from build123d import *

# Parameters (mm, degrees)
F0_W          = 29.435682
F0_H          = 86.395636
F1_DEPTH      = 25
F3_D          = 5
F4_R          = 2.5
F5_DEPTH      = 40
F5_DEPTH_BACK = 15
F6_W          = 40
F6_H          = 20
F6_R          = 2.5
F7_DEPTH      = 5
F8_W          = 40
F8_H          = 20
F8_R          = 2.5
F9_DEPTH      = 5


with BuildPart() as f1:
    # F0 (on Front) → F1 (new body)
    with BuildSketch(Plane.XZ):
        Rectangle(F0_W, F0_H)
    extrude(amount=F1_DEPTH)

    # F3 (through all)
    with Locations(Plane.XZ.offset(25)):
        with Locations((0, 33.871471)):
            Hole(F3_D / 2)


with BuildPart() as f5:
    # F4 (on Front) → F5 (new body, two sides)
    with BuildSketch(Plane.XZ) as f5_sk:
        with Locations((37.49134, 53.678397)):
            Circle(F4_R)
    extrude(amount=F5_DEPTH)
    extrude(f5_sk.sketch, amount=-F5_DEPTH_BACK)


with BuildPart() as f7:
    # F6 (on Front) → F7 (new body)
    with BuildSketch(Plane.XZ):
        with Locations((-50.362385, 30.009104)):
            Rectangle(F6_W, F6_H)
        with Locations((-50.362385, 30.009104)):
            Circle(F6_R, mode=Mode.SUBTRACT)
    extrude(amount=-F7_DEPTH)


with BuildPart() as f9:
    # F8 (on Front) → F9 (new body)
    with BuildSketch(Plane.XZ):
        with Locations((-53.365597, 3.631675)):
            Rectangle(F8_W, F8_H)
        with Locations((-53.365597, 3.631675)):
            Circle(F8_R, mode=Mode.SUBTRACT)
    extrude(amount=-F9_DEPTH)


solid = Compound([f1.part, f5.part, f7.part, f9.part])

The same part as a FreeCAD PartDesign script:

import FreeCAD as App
import Part
import Sketcher
from FreeCAD import Vector
Q = App.Units.Quantity

doc = App.newDocument("Part")
params = doc.addObject("Spreadsheet::Sheet", "Params")
for row, (alias, value) in enumerate([
    ("pad1_length", "25 mm"),
    ("sketch2_diameter", "5 mm"),
    ("hole_diameter", "5 mm"),
    ("sketch3_diameter", "5 mm"),
    ("pad2_length", "40 mm"),
    ("pad2_length2", "15 mm"),
    ("sketch4_diameter", "5 mm"),
    ("sketch4_width", "40 mm"),
    ("sketch4_height", "20 mm"),
    ("pad3_length", "5 mm"),
    ("sketch5_diameter", "5 mm"),
    ("sketch5_width", "40 mm"),
    ("sketch5_height", "20 mm"),
    ("pad4_length", "5 mm"),
], start=1):
    params.set(f"A{row}", alias)
    params.set(f"B{row}", "=" + value)
    params.setAlias(f"B{row}", alias)

body = doc.addObject("PartDesign::Body", "Body")

# Sketch on XZ plane
sketch1 = doc.addObject("Sketcher::SketchObject", "Sketch")
body.addObject(sketch1)
sketch1.AttachmentSupport = (doc.XZ_Plane, [""])
sketch1.MapMode = "FlatFace"
sketch1.addGeometry([
    Part.LineSegment(Vector(-15, 43, 0), Vector(-15, -43, 0)),
    Part.LineSegment(Vector(-15, -43, 0), Vector(15, -43, 0)),
    Part.LineSegment(Vector(15, -43, 0), Vector(15, 43, 0)),
    Part.LineSegment(Vector(15, 43, 0), Vector(-15, 43, 0)),
], False)
sketch1.addConstraint([
    Sketcher.Constraint("Coincident", 0, 2, 1, 1),
    Sketcher.Constraint("Coincident", 1, 2, 2, 1),
    Sketcher.Constraint("Coincident", 2, 2, 3, 1),
    Sketcher.Constraint("Coincident", 3, 2, 0, 1),
    Sketcher.Constraint("Vertical", 0),
    Sketcher.Constraint("Horizontal", 1),
    Sketcher.Constraint("Vertical", 2),
    Sketcher.Constraint("Horizontal", 3),
    Sketcher.Constraint("Symmetric", 0, 2, 2, 2, -1, 1),
    Sketcher.Constraint("DistanceX", 1, 1, 1, 2, Q("29.435682 mm")),
    Sketcher.Constraint("DistanceY", 0, 2, 0, 1, Q("86.395636 mm")),
])
pad1 = doc.addObject("PartDesign::Pad", "Pad")
body.addObject(pad1)
pad1.Profile = sketch1
pad1.setExpression("Length", "Params.pad1_length")

# Sketch on XZ plane
sketch2 = doc.addObject("Sketcher::SketchObject", "Sketch001")
body.addObject(sketch2)
sketch2.AttachmentSupport = (doc.XZ_Plane, [""])
sketch2.MapMode = "FlatFace"
sketch2.AttachmentOffset = App.Placement(Vector(0, 0, 25), App.Rotation())
sketch2.addGeometry(Part.Circle(Vector(0, 33.9, 0), Vector(0, 0, 1), 2.5), False)
sketch2.addConstraint([
    Sketcher.Constraint("PointOnObject", 0, 3, -2),
    Sketcher.Constraint("Diameter", 0, Q("5 mm")),
    Sketcher.Constraint("DistanceY", -1, 1, 0, 3, Q("33.871471 mm")),
])
sketch2.setExpression("Constraints[1]", "Params.sketch2_diameter")
doc.recompute()
hole = doc.addObject("PartDesign::Hole", "Hole")
body.addObject(hole)
hole.Profile = sketch2
hole.ThreadType = "None"
hole.setExpression("Diameter", "Params.hole_diameter")
hole.DepthType = "ThroughAll"
body2 = doc.addObject("PartDesign::Body", "Body001")

# Sketch on XZ plane
sketch3 = doc.addObject("Sketcher::SketchObject", "Sketch002")
body2.addObject(sketch3)
sketch3.AttachmentSupport = (doc.getObject("XZ_Plane001"), [""])
sketch3.MapMode = "FlatFace"
sketch3.addGeometry(Part.Circle(Vector(37.5, 53.7, 0), Vector(0, 0, 1), 2.5), False)
sketch3.addConstraint([
    Sketcher.Constraint("Diameter", 0, Q("5 mm")),
    Sketcher.Constraint("DistanceX", -1, 1, 0, 3, Q("37.49134 mm")),
    Sketcher.Constraint("DistanceY", -1, 1, 0, 3, Q("53.678397 mm")),
])
sketch3.setExpression("Constraints[0]", "Params.sketch3_diameter")
pad2 = doc.addObject("PartDesign::Pad", "Pad001")
body2.addObject(pad2)
pad2.Profile = sketch3
pad2.Type = "TwoLengths"
pad2.setExpression("Length", "Params.pad2_length")
pad2.setExpression("Length2", "Params.pad2_length2")
body3 = doc.addObject("PartDesign::Body", "Body002")

# Sketch on XZ plane
sketch4 = doc.addObject("Sketcher::SketchObject", "Sketch003")
body3.addObject(sketch4)
sketch4.AttachmentSupport = (doc.getObject("XZ_Plane002"), [""])
sketch4.MapMode = "FlatFace"
sketch4.addGeometry([
    Part.LineSegment(Vector(-70.4, 40, 0), Vector(-70.4, 20, 0)),  # 0
    Part.LineSegment(Vector(-70.4, 20, 0), Vector(-30.4, 20, 0)),  # 1
    Part.LineSegment(Vector(-30.4, 20, 0), Vector(-30.4, 40, 0)),  # 2
    Part.LineSegment(Vector(-30.4, 40, 0), Vector(-70.4, 40, 0)),  # 3
    Part.Circle(Vector(-50.4, 30, 0), Vector(0, 0, 1), 2.5),  # 4
], False)
sketch4.addConstraint([
    Sketcher.Constraint("Coincident", 0, 2, 1, 1),
    Sketcher.Constraint("Coincident", 1, 2, 2, 1),
    Sketcher.Constraint("Coincident", 2, 2, 3, 1),
    Sketcher.Constraint("Coincident", 3, 2, 0, 1),
    Sketcher.Constraint("Vertical", 0),
    Sketcher.Constraint("Horizontal", 1),
    Sketcher.Constraint("Vertical", 2),
    Sketcher.Constraint("Horizontal", 3),
    Sketcher.Constraint("Diameter", 4, Q("5 mm")),
    Sketcher.Constraint("DistanceX", 1, 1, 1, 2, Q("40 mm")),
    Sketcher.Constraint("DistanceY", 0, 2, 0, 1, Q("20 mm")),
    Sketcher.Constraint("DistanceX", 0, 2, 4, 3, Q("20 mm")),
    Sketcher.Constraint("DistanceY", 0, 2, 4, 3, Q("10 mm")),
    Sketcher.Constraint("DistanceX", 4, 3, -1, 1, Q("50.362385 mm")),
    Sketcher.Constraint("DistanceY", -1, 1, 4, 3, Q("30.009104 mm")),
])
sketch4.setExpression("Constraints[8]", "Params.sketch4_diameter")
sketch4.setExpression("Constraints[9]", "Params.sketch4_width")
sketch4.setExpression("Constraints[10]", "Params.sketch4_height")
pad3 = doc.addObject("PartDesign::Pad", "Pad002")
body3.addObject(pad3)
pad3.Profile = sketch4
pad3.setExpression("Length", "Params.pad3_length")
pad3.Reversed = True
body4 = doc.addObject("PartDesign::Body", "Body003")

# Sketch on XZ plane
sketch5 = doc.addObject("Sketcher::SketchObject", "Sketch004")
body4.addObject(sketch5)
sketch5.AttachmentSupport = (doc.getObject("XZ_Plane003"), [""])
sketch5.MapMode = "FlatFace"
sketch5.addGeometry([
    Part.LineSegment(Vector(-73.4, 13.6, 0), Vector(-73.4, -6.4, 0)),  # 0
    Part.LineSegment(Vector(-73.4, -6.4, 0), Vector(-33.4, -6.4, 0)),  # 1
    Part.LineSegment(Vector(-33.4, -6.4, 0), Vector(-33.4, 13.6, 0)),  # 2
    Part.LineSegment(Vector(-33.4, 13.6, 0), Vector(-73.4, 13.6, 0)),  # 3
    Part.Circle(Vector(-53.4, 3.6, 0), Vector(0, 0, 1), 2.5),  # 4
], False)
sketch5.addConstraint([
    Sketcher.Constraint("Coincident", 0, 2, 1, 1),
    Sketcher.Constraint("Coincident", 1, 2, 2, 1),
    Sketcher.Constraint("Coincident", 2, 2, 3, 1),
    Sketcher.Constraint("Coincident", 3, 2, 0, 1),
    Sketcher.Constraint("Vertical", 0),
    Sketcher.Constraint("Horizontal", 1),
    Sketcher.Constraint("Vertical", 2),
    Sketcher.Constraint("Horizontal", 3),
    Sketcher.Constraint("Diameter", 4, Q("5 mm")),
    Sketcher.Constraint("DistanceX", 1, 1, 1, 2, Q("40 mm")),
    Sketcher.Constraint("DistanceY", 0, 2, 0, 1, Q("20 mm")),
    Sketcher.Constraint("DistanceX", 0, 2, 4, 3, Q("20 mm")),
    Sketcher.Constraint("DistanceY", 0, 2, 4, 3, Q("10 mm")),
    Sketcher.Constraint("DistanceX", 4, 3, -1, 1, Q("53.365597 mm")),
    Sketcher.Constraint("DistanceY", -1, 1, 4, 3, Q("3.631675 mm")),
])
sketch5.setExpression("Constraints[8]", "Params.sketch5_diameter")
sketch5.setExpression("Constraints[9]", "Params.sketch5_width")
sketch5.setExpression("Constraints[10]", "Params.sketch5_height")
pad4 = doc.addObject("PartDesign::Pad", "Pad003")
body4.addObject(pad4)
pad4.Profile = sketch5
pad4.setExpression("Length", "Params.pad4_length")
pad4.Reversed = True

doc.recompute()
